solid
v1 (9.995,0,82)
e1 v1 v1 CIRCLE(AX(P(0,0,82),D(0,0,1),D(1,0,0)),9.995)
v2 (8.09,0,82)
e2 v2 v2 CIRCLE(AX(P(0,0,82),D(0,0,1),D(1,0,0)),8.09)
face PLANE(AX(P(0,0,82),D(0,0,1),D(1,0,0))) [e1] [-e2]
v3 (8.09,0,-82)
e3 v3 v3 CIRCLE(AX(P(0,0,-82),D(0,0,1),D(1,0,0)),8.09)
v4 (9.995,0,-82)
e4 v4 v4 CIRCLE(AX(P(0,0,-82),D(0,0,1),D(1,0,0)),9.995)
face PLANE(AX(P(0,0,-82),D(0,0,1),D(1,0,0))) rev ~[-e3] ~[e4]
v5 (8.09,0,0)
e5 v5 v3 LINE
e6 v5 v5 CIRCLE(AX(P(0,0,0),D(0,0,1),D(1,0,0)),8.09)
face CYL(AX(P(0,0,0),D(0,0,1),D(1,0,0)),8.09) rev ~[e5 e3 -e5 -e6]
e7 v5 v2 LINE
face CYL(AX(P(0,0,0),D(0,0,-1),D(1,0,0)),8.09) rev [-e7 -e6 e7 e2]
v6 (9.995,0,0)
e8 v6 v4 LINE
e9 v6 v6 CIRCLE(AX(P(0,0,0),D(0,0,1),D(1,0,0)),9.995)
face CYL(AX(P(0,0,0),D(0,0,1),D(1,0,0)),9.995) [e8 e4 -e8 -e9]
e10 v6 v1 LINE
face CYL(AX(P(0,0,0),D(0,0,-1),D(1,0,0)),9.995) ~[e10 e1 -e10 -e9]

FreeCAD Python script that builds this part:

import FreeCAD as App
import Part
import Sketcher

V = App.Vector
Q = App.Units.Quantity

doc = App.newDocument("Part")
params = doc.addObject("Spreadsheet::Sheet", "Params")
for row, (alias, value) in enumerate([
    ("sketch1_diameter", "0.787 in"),
    ("sketch1_diameter2", "0.637 in"),
    ("pad1_length", "6.4566929 in"),
], start=1):
    params.set(f"A{row}", alias)
    params.set(f"B{row}", "=" + value)
    params.setAlias(f"B{row}", alias)

body = doc.addObject("PartDesign::Body", "Body")

# Sketch on XY plane
sketch1 = body.newObject("Sketcher::SketchObject", "Sketch")
sketch1.AttachmentSupport = (doc.getObject("XY_Plane"), [""])
sketch1.MapMode = "FlatFace"
sketch1.addGeometry([
    Part.Circle(V(0, 0, 0), V(0, 0, 1), 10),
    Part.Circle(V(0, 0, 0), V(0, 0, 1), 8),
], False)
sketch1.addConstraint([
    Sketcher.Constraint("Coincident", 0, 3, -1, 1),
    Sketcher.Constraint("Coincident", 1, 3, -1, 1),
    Sketcher.Constraint("Diameter", 0, Q("0.787 in")),
    Sketcher.Constraint("Diameter", 1, Q("0.637 in")),
])
sketch1.setExpression("Constraints[2]", "Params.sketch1_diameter")
sketch1.setExpression("Constraints[3]", "Params.sketch1_diameter2")
pad1 = body.newObject("PartDesign::Pad", "Pad")
pad1.Profile = sketch1
pad1.setExpression("Length", "Params.pad1_length")
pad1.Midplane = True

doc.recompute()
